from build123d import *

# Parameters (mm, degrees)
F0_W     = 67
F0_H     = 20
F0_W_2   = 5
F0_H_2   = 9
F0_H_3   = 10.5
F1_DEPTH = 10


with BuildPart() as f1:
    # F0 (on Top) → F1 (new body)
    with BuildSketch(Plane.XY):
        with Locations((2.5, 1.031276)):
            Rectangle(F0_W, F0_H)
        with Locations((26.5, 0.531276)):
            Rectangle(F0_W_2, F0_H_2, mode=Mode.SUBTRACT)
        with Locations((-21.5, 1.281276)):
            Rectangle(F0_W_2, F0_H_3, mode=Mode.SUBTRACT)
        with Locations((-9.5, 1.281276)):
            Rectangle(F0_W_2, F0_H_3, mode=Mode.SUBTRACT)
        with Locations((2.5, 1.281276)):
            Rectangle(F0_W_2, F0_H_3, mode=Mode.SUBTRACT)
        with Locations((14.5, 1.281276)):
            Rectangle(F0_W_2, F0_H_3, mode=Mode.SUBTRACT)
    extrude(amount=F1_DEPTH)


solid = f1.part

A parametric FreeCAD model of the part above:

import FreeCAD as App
import Part
import Sketcher

V = App.Vector
Q = App.Units.Quantity

doc = App.newDocument("Part")
params = doc.addObject("Spreadsheet::Sheet", "Params")
for row, (alias, value) in enumerate([
    ("sketch1_width", "67 mm"),
    ("sketch1_width2", "5 mm"),
    ("sketch1_height", "20 mm"),
    ("sketch1_height2", "9 mm"),
    ("sketch1_height3", "10.5 mm"),
    ("pad1_length", "10 mm"),
], start=1):
    params.set(f"A{row}", alias)
    params.set(f"B{row}", "=" + value)
    params.setAlias(f"B{row}", alias)

body = doc.addObject("PartDesign::Body", "Body")

# Sketch on XY plane
sketch1 = body.newObject("Sketcher::SketchObject", "Sketch")
sketch1.AttachmentSupport = (doc.getObject("XY_Plane"), [""])
sketch1.MapMode = "FlatFace"
sketch1.addGeometry([
    Part.LineSegment(V(-31, 11, 0), V(-31, -9, 0)),  # 0
    Part.LineSegment(V(-31, -9, 0), V(36, -9, 0)),  # 1
    Part.LineSegment(V(36, -9, 0), V(36, 11, 0)),  # 2
    Part.LineSegment(V(36, 11, 0), V(-31, 11, 0)),  # 3
    Part.LineSegment(V(29, -4, 0), V(24, -4, 0)),  # 4
    Part.LineSegment(V(24, -4, 0), V(24, 5, 0)),  # 5
    Part.LineSegment(V(24, 5, 0), V(29, 5, 0)),  # 6
    Part.LineSegment(V(29, 5, 0), V(29, -4, 0)),  # 7
    Part.LineSegment(V(-19, -4, 0), V(-24, -4, 0)),  # 8
    Part.LineSegment(V(-24, -4, 0), V(-24, 7, 0)),  # 9
    Part.LineSegment(V(-24, 7, 0), V(-19, 7, 0)),  # 10
    Part.LineSegment(V(-19, 7, 0), V(-19, -4, 0)),  # 11
    Part.LineSegment(V(-7, -4, 0), V(-12, -4, 0)),  # 12
    Part.LineSegment(V(-12, -4, 0), V(-12, 7, 0)),  # 13
    Part.LineSegment(V(-12, 7, 0), V(-7, 7, 0)),  # 14
    Part.LineSegment(V(-7, 7, 0), V(-7, -4, 0)),  # 15
    Part.LineSegment(V(5, -4, 0), V(0, -4, 0)),  # 16
    Part.LineSegment(V(0, -4, 0), V(0, 7, 0)),  # 17
    Part.LineSegment(V(0, 7, 0), V(5, 7, 0)),  # 18
    Part.LineSegment(V(5, 7, 0), V(5, -4, 0)),  # 19
    Part.LineSegment(V(17, -4, 0), V(12, -4, 0)),  # 20
    Part.LineSegment(V(12, -4, 0), V(12, 7, 0)),  # 21
    Part.LineSegment(V(12, 7, 0), V(17, 7, 0)),  # 22
    Part.LineSegment(V(17, 7, 0), V(17, -4, 0)),  # 23
], False)
sketch1.addConstraint([
    Sketcher.Constraint("Coincident", 0, 2, 1, 1),
    Sketcher.Constraint("Coincident", 1, 2, 2, 1),
    Sketcher.Constraint("Coincident", 2, 2, 3, 1),
    Sketcher.Constraint("Coincident", 3, 2, 0, 1),
    Sketcher.Constraint("Coincident", 4, 2, 5, 1),
    Sketcher.Constraint("Coincident", 5, 2, 6, 1),
    Sketcher.Constraint("Coincident", 6, 2, 7, 1),
    Sketcher.Constraint("Coincident", 7, 2, 4, 1),
    Sketcher.Constraint("Coincident", 8, 2, 9, 1),
    Sketcher.Constraint("Coincident", 9, 2, 10, 1),
    Sketcher.Constraint("Coincident", 10, 2, 11, 1),
    Sketcher.Constraint("Coincident", 11, 2, 8, 1),
    Sketcher.Constraint("Coincident", 12, 2, 13, 1),
    Sketcher.Constraint("Coincident", 13, 2, 14, 1),
    Sketcher.Constraint("Coincident", 14, 2, 15, 1),
    Sketcher.Constraint("Coincident", 15, 2, 12, 1),
    Sketcher.Constraint("Coincident", 16, 2, 17, 1),
    Sketcher.Constraint("Coincident", 17, 2, 18, 1),
    Sketcher.Constraint("Coincident", 18, 2, 19, 1),
    Sketcher.Constraint("Coincident", 19, 2, 16, 1),
    Sketcher.Constraint("Coincident", 20, 2, 21, 1),
    Sketcher.Constraint("Coincident", 21, 2, 22, 1),
    Sketcher.Constraint("Coincident", 22, 2, 23, 1),
    Sketcher.Constraint("Coincident", 23, 2, 20, 1),
    Sketcher.Constraint("Vertical", 0),
    Sketcher.Constraint("Horizontal", 1),
    Sketcher.Constraint("Vertical", 2),
    Sketcher.Constraint("Horizontal", 3),
    Sketcher.Constraint("Horizontal", 4),
    Sketcher.Constraint("Vertical", 5),
    Sketcher.Constraint("Horizontal", 6),
    Sketcher.Constraint("Vertical", 7),
    Sketcher.Constraint("Horizontal", 8),
    Sketcher.Constraint("Vertical", 9),
    Sketcher.Constraint("Horizontal", 10),
    Sketcher.Constraint("Vertical", 11),
    Sketcher.Constraint("Horizontal", 12),
    Sketcher.Constraint("Vertical", 13),
    Sketcher.Constraint("Horizontal", 14),
    Sketcher.Constraint("Vertical", 15),
    Sketcher.Constraint("Horizontal", 16),
    Sketcher.Constraint("Vertical", 17),
    Sketcher.Constraint("Horizontal", 18),
    Sketcher.Constraint("Vertical", 19),
    Sketcher.Constraint("Horizontal", 20),
    Sketcher.Constraint("Vertical", 21),
    Sketcher.Constraint("Horizontal", 22),
    Sketcher.Constraint("Vertical", 23),
    Sketcher.Constraint("Symmetric", 4, 2, 8, 2, -2),
    Sketcher.Constraint("Symmetric", 12, 2, 20, 2, -2),
    Sketcher.Constraint("PointOnObject", 16, 2, -2),
    Sketcher.Constraint("Horizontal", 11, 2, 12, 2),
    Sketcher.Constraint("Horizontal", 10, 2, 13, 2),
    Sketcher.Constraint("Horizontal", 15, 2, 16, 2),
    Sketcher.Constraint("Horizontal", 14, 2, 17, 2),
    Sketcher.Constraint("Horizontal", 18, 2, 21, 2),
    Sketcher.Constraint("Equal", 6, 8),
    Sketcher.Constraint("Equal", 10, 12),
    Sketcher.Constraint("Equal", 14, 16),
    Sketcher.Constraint("Equal", 18, 20),
    Sketcher.Constraint("DistanceX", 1, 1, 1, 2, Q("67 mm")),
    Sketcher.Constraint("DistanceX", 4, 2, 4, 1, Q("5 mm")),
    Sketcher.Constraint("DistanceY", 0, 2, 0, 1, Q("20 mm")),
    Sketcher.Constraint("DistanceY", 5, 1, 5, 2, Q("9 mm")),
    Sketcher.Constraint("DistanceY", 9, 1, 9, 2, Q("10.5 mm")),
    Sketcher.Constraint("DistanceX", 0, 2, -1, 1, Q("31 mm")),
    Sketcher.Constraint("DistanceX", -1, 1, 4, 2, Q("24 mm")),
    Sketcher.Constraint("DistanceX", 12, 2, -1, 1, Q("12 mm")),
    Sketcher.Constraint("DistanceY", 1, 2, 4, 2, Q("5 mm")),
    Sketcher.Constraint("DistanceY", 0, 2, -1, 1, Q("8.968724 mm")),
])
sketch1.setExpression("Constraints[60]", "Params.sketch1_width")
sketch1.setExpression("Constraints[61]", "Params.sketch1_width2")
sketch1.setExpression("Constraints[62]", "Params.sketch1_height")
sketch1.setExpression("Constraints[63]", "Params.sketch1_height2")
sketch1.setExpression("Constraints[64]", "Params.sketch1_height3")
pad1 = body.newObject("PartDesign::Pad", "Pad")
pad1.Profile = sketch1
pad1.setExpression("Length", "Params.pad1_length")

doc.recompute()
